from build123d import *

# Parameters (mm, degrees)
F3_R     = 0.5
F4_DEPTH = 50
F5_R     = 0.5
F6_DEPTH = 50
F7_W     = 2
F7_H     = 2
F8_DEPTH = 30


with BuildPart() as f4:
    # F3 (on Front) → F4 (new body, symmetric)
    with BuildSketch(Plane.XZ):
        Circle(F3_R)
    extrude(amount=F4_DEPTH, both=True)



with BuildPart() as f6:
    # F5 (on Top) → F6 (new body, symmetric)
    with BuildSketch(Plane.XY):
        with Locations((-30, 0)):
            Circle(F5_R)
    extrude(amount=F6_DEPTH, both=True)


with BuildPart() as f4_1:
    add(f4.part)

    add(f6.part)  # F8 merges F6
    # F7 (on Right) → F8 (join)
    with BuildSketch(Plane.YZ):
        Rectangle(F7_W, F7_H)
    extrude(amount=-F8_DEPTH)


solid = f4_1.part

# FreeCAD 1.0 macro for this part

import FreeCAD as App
import Part
import Sketcher
from FreeCAD import Vector

doc = App.newDocument("Part")
body = doc.addObject("PartDesign::Body", "Body")

sketch1 = body.newObject("Sketcher::SketchObject", "Sketch")
sketch1.AttachmentSupport = (doc.getObject("XZ_Plane"), [""])
sketch1.MapMode = "FlatFace"
sketch1.addGeometry(Part.Circle(Vector(0, 0, 0), Vector(0, 0, 1), 0.5), False)
sketch1.addConstraint([
    Sketcher.Constraint("Coincident", 0, 3, -1, 1),
    Sketcher.Constraint("Diameter", 0, 1.0),
])
pad1 = body.newObject("PartDesign::Pad", "Pad")
pad1.Profile = sketch1
pad1.Length = 100
pad1.Midplane = True
body2 = doc.addObject("PartDesign::Body", "Body001")

sketch2 = body2.newObject("Sketcher::SketchObject", "Sketch001")
sketch2.AttachmentSupport = (doc.getObject("XY_Plane001"), [""])
sketch2.MapMode = "FlatFace"
sketch2.addGeometry(Part.Circle(Vector(-30, 0, 0), Vector(0, 0, 1), 0.5), False)
sketch2.addConstraint([
    Sketcher.Constraint("PointOnObject", 0, 3, -1),
    Sketcher.Constraint("Diameter", 0, 1.0),
    Sketcher.Constraint("DistanceX", 0, 3, -1, 1, 30.0),
])
pad2 = body2.newObject("PartDesign::Pad", "Pad001")
pad2.Profile = sketch2
pad2.Length = 100
pad2.Midplane = True
body.AllowCompound = True
doc.recompute()

boolean = body.newObject("PartDesign::Boolean", "Boolean")
boolean.Type = "Fuse"
boolean.addObjects([body2])

sketch3 = body.newObject("Sketcher::SketchObject", "Sketch002")
sketch3.AttachmentSupport = (doc.getObject("YZ_Plane"), [""])
sketch3.MapMode = "FlatFace"
sketch3.addGeometry([
    Part.LineSegment(Vector(-1, 1, 0), Vector(-1, -1, 0)),
    Part.LineSegment(Vector(-1, -1, 0), Vector(1, -1, 0)),
    Part.LineSegment(Vector(1, -1, 0), Vector(1, 1, 0)),
    Part.LineSegment(Vector(1, 1, 0), Vector(-1, 1, 0)),
], False)
sketch3.addConstraint([
    Sketcher.Constraint("Coincident", 0, 2, 1, 1),
    Sketcher.Constraint("Coincident", 1, 2, 2, 1),
    Sketcher.Constraint("Coincident", 2, 2, 3, 1),
    Sketcher.Constraint("Coincident", 3, 2, 0, 1),
    Sketcher.Constraint("Vertical", 0),
    Sketcher.Constraint("Horizontal", 1),
    Sketcher.Constraint("Vertical", 2),
    Sketcher.Constraint("Horizontal", 3),
    Sketcher.Constraint("Symmetric", 0, 2, 2, 2, -1, 1),
    Sketcher.Constraint("Equal", 3, 0),
    Sketcher.Constraint("DistanceX", 1, 1, 1, 2, 2.0),
])
pad3 = body.newObject("PartDesign::Pad", "Pad002")
pad3.Profile = sketch3
pad3.Length = 30
pad3.Reversed = True

doc.recompute()
